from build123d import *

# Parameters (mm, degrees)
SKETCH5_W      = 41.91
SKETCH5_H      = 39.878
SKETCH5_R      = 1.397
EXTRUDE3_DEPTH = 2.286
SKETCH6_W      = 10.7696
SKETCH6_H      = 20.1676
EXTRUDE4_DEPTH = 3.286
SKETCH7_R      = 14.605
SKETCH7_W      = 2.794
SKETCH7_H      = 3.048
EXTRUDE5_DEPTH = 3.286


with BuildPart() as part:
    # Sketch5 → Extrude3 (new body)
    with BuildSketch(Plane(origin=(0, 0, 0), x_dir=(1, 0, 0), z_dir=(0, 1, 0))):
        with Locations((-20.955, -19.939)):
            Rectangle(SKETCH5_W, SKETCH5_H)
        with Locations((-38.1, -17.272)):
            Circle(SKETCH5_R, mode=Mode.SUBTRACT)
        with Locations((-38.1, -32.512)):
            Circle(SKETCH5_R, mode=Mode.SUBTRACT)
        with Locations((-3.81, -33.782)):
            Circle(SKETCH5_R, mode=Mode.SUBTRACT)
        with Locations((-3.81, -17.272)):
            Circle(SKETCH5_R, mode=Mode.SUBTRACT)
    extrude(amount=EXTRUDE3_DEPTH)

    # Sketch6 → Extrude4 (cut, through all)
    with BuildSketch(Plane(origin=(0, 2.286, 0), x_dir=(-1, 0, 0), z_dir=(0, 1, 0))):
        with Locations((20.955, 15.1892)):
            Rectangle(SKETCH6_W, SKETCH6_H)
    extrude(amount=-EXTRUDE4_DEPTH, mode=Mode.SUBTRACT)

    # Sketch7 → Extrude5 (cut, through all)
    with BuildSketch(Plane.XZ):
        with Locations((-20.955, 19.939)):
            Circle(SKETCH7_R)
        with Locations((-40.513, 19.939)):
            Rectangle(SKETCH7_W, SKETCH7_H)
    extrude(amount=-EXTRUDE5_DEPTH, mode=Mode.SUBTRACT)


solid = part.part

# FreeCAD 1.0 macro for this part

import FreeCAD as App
import Part
import Sketcher
from FreeCAD import Vector
Q = App.Units.Quantity

doc = App.newDocument("Part")
body = doc.addObject("PartDesign::Body", "Body")

sketch1 = doc.addObject("Sketcher::SketchObject", "Sketch")
body.addObject(sketch1)
sketch1.AttachmentSupport = (doc.XZ_Plane, [""])
sketch1.MapMode = "FlatFace"
sketch1.addGeometry([
    Part.LineSegment(Vector(-41.9, 0, 0), Vector(-41.9, 39.9, 0)),
    Part.LineSegment(Vector(-41.9, 39.9, 0), Vector(0, 39.9, 0)),
    Part.LineSegment(Vector(0, 39.9, 0), Vector(0, 0, 0)),
    Part.LineSegment(Vector(0, 0, 0), Vector(-41.9, 0, 0)),
    Part.Circle(Vector(-38.1, 32.5, 0), Vector(0, 0, 1), 1.4),
    Part.Circle(Vector(-3.8, 33.8, 0), Vector(0, 0, 1), 1.4),
    Part.Circle(Vector(-38.1, 17.3, 0), Vector(0, 0, 1), 1.4),
    Part.Circle(Vector(-3.8, 17.3, 0), Vector(0, 0, 1), 1.4),
], False)
sketch1.addConstraint([
    Sketcher.Constraint("Coincident", 0, 2, 1, 1),
    Sketcher.Constraint("Coincident", 1, 2, 2, 1),
    Sketcher.Constraint("Coincident", 2, 2, 3, 1),
    Sketcher.Constraint("Coincident", 3, 2, 0, 1),
    Sketcher.Constraint("Vertical", 0),
    Sketcher.Constraint("Horizontal", 1),
    Sketcher.Constraint("Vertical", 2),
    Sketcher.Constraint("Horizontal", 3),
    Sketcher.Constraint("Coincident", 2, 2, -1, 1),
    Sketcher.Constraint("Equal", 4, 5),
    Sketcher.Constraint("Equal", 5, 6),
    Sketcher.Constraint("Equal", 6, 7),
    Sketcher.Constraint("Horizontal", 6, 3, 7, 3),
    Sketcher.Constraint("Vertical", 4, 3, 6, 3),
    Sketcher.Constraint("Vertical", 5, 3, 7, 3),
    Sketcher.Constraint("Diameter", 4, Q("0.11 in")),
    Sketcher.Constraint("DistanceX", 1, 1, 1, 2, Q("1.65 in")),
    Sketcher.Constraint("DistanceY", 0, 1, 0, 2, Q("1.57 in")),
    Sketcher.Constraint("DistanceX", 4, 3, -1, 1, Q("1.5 in")),
    Sketcher.Constraint("DistanceY", 6, 3, 4, 3, Q("0.6 in")),
    Sketcher.Constraint("DistanceX", 0, 2, 5, 3, Q("1.5 in")),
    Sketcher.Constraint("DistanceY", -1, 1, 4, 3, Q("1.28 in")),
    Sketcher.Constraint("DistanceY", -1, 1, 5, 3, Q("1.33 in")),
])
pad1 = doc.addObject("PartDesign::Pad", "Pad")
body.addObject(pad1)
pad1.Profile = sketch1
pad1.Length = Q("0.09 in")
pad1.Reversed = True

sketch2 = doc.addObject("Sketcher::SketchObject", "Sketch001")
body.addObject(sketch2)
sketch2.AttachmentSupport = (doc.XZ_Plane, [""])
sketch2.MapMode = "FlatFace"
sketch2.AttachmentOffset = App.Placement(Vector(0, 0, -0.09 * 25.4), App.Rotation())
sketch2.addGeometry([
    Part.LineSegment(Vector(-16, 25, 0), Vector(-16, 5, 0)),
    Part.LineSegment(Vector(-16, 5, 0), Vector(-26, 5, 0)),
    Part.LineSegment(Vector(-26, 5, 0), Vector(-26, 25, 0)),
    Part.LineSegment(Vector(-26, 25, 0), Vector(-16, 25, 0)),
], False)
sketch2.addConstraint([
    Sketcher.Constraint("Coincident", 0, 2, 1, 1),
    Sketcher.Constraint("Coincident", 1, 2, 2, 1),
    Sketcher.Constraint("Coincident", 2, 2, 3, 1),
    Sketcher.Constraint("Coincident", 3, 2, 0, 1),
    Sketcher.Constraint("Vertical", 0),
    Sketcher.Constraint("Horizontal", 1),
    Sketcher.Constraint("Vertical", 2),
    Sketcher.Constraint("Horizontal", 3),
    Sketcher.Constraint("DistanceX", 1, 2, 1, 1, Q("0.424 in")),
    Sketcher.Constraint("DistanceY", 0, 2, 0, 1, Q("0.794 in")),
    Sketcher.Constraint("DistanceX", 0, 2, -1, 1, Q("0.613 in")),
    Sketcher.Constraint("DistanceY", -1, 1, 0, 2, Q("0.201 in")),
])
pocket1 = doc.addObject("PartDesign::Pocket", "Pocket")
body.addObject(pocket1)
pocket1.Profile = sketch2
pocket1.Type = "ThroughAll"
pocket1.Reversed = True

sketch3 = doc.addObject("Sketcher::SketchObject", "Sketch002")
body.addObject(sketch3)
sketch3.AttachmentSupport = (doc.XZ_Plane, [""])
sketch3.MapMode = "FlatFace"
sketch3.addGeometry([
    Part.Circle(Vector(-21, 19.9, 0), Vector(0, 0, 1), 14.6),
    Part.LineSegment(Vector(-41.9, 21.5, 0), Vector(-41.9, 18.4, 0)),
    Part.LineSegment(Vector(-41.9, 18.4, 0), Vector(-39.1, 18.4, 0)),
    Part.LineSegment(Vector(-39.1, 18.4, 0), Vector(-39.1, 21.5, 0)),
    Part.LineSegment(Vector(-39.1, 21.5, 0), Vector(-41.9, 21.5, 0)),
], False)
sketch3.addConstraint([
    Sketcher.Constraint("Coincident", 1, 2, 2, 1),
    Sketcher.Constraint("Coincident", 2, 2, 3, 1),
    Sketcher.Constraint("Coincident", 3, 2, 4, 1),
    Sketcher.Constraint("Coincident", 4, 2, 1, 1),
    Sketcher.Constraint("Vertical", 1),
    Sketcher.Constraint("Horizontal", 2),
    Sketcher.Constraint("Vertical", 3),
    Sketcher.Constraint("Horizontal", 4),
    Sketcher.Constraint("Diameter", 0, Q("1.15 in")),
    Sketcher.Constraint("DistanceX", 2, 1, 2, 2, Q("0.11 in")),
    Sketcher.Constraint("DistanceY", 1, 2, 1, 1, Q("0.12 in")),
    Sketcher.Constraint("DistanceX", 1, 2, -1, 1, Q("1.65 in")),
    Sketcher.Constraint("DistanceY", 1, 2, 0, 3, Q("0.06 in")),
    Sketcher.Constraint("DistanceX", 0, 3, -1, 1, Q("0.825 in")),
    Sketcher.Constraint("DistanceY", -1, 1, 0, 3, Q("0.785 in")),
])
pocket2 = doc.addObject("PartDesign::Pocket", "Pocket001")
body.addObject(pocket2)
pocket2.Profile = sketch3
pocket2.Type = "ThroughAll"

doc.recompute()
